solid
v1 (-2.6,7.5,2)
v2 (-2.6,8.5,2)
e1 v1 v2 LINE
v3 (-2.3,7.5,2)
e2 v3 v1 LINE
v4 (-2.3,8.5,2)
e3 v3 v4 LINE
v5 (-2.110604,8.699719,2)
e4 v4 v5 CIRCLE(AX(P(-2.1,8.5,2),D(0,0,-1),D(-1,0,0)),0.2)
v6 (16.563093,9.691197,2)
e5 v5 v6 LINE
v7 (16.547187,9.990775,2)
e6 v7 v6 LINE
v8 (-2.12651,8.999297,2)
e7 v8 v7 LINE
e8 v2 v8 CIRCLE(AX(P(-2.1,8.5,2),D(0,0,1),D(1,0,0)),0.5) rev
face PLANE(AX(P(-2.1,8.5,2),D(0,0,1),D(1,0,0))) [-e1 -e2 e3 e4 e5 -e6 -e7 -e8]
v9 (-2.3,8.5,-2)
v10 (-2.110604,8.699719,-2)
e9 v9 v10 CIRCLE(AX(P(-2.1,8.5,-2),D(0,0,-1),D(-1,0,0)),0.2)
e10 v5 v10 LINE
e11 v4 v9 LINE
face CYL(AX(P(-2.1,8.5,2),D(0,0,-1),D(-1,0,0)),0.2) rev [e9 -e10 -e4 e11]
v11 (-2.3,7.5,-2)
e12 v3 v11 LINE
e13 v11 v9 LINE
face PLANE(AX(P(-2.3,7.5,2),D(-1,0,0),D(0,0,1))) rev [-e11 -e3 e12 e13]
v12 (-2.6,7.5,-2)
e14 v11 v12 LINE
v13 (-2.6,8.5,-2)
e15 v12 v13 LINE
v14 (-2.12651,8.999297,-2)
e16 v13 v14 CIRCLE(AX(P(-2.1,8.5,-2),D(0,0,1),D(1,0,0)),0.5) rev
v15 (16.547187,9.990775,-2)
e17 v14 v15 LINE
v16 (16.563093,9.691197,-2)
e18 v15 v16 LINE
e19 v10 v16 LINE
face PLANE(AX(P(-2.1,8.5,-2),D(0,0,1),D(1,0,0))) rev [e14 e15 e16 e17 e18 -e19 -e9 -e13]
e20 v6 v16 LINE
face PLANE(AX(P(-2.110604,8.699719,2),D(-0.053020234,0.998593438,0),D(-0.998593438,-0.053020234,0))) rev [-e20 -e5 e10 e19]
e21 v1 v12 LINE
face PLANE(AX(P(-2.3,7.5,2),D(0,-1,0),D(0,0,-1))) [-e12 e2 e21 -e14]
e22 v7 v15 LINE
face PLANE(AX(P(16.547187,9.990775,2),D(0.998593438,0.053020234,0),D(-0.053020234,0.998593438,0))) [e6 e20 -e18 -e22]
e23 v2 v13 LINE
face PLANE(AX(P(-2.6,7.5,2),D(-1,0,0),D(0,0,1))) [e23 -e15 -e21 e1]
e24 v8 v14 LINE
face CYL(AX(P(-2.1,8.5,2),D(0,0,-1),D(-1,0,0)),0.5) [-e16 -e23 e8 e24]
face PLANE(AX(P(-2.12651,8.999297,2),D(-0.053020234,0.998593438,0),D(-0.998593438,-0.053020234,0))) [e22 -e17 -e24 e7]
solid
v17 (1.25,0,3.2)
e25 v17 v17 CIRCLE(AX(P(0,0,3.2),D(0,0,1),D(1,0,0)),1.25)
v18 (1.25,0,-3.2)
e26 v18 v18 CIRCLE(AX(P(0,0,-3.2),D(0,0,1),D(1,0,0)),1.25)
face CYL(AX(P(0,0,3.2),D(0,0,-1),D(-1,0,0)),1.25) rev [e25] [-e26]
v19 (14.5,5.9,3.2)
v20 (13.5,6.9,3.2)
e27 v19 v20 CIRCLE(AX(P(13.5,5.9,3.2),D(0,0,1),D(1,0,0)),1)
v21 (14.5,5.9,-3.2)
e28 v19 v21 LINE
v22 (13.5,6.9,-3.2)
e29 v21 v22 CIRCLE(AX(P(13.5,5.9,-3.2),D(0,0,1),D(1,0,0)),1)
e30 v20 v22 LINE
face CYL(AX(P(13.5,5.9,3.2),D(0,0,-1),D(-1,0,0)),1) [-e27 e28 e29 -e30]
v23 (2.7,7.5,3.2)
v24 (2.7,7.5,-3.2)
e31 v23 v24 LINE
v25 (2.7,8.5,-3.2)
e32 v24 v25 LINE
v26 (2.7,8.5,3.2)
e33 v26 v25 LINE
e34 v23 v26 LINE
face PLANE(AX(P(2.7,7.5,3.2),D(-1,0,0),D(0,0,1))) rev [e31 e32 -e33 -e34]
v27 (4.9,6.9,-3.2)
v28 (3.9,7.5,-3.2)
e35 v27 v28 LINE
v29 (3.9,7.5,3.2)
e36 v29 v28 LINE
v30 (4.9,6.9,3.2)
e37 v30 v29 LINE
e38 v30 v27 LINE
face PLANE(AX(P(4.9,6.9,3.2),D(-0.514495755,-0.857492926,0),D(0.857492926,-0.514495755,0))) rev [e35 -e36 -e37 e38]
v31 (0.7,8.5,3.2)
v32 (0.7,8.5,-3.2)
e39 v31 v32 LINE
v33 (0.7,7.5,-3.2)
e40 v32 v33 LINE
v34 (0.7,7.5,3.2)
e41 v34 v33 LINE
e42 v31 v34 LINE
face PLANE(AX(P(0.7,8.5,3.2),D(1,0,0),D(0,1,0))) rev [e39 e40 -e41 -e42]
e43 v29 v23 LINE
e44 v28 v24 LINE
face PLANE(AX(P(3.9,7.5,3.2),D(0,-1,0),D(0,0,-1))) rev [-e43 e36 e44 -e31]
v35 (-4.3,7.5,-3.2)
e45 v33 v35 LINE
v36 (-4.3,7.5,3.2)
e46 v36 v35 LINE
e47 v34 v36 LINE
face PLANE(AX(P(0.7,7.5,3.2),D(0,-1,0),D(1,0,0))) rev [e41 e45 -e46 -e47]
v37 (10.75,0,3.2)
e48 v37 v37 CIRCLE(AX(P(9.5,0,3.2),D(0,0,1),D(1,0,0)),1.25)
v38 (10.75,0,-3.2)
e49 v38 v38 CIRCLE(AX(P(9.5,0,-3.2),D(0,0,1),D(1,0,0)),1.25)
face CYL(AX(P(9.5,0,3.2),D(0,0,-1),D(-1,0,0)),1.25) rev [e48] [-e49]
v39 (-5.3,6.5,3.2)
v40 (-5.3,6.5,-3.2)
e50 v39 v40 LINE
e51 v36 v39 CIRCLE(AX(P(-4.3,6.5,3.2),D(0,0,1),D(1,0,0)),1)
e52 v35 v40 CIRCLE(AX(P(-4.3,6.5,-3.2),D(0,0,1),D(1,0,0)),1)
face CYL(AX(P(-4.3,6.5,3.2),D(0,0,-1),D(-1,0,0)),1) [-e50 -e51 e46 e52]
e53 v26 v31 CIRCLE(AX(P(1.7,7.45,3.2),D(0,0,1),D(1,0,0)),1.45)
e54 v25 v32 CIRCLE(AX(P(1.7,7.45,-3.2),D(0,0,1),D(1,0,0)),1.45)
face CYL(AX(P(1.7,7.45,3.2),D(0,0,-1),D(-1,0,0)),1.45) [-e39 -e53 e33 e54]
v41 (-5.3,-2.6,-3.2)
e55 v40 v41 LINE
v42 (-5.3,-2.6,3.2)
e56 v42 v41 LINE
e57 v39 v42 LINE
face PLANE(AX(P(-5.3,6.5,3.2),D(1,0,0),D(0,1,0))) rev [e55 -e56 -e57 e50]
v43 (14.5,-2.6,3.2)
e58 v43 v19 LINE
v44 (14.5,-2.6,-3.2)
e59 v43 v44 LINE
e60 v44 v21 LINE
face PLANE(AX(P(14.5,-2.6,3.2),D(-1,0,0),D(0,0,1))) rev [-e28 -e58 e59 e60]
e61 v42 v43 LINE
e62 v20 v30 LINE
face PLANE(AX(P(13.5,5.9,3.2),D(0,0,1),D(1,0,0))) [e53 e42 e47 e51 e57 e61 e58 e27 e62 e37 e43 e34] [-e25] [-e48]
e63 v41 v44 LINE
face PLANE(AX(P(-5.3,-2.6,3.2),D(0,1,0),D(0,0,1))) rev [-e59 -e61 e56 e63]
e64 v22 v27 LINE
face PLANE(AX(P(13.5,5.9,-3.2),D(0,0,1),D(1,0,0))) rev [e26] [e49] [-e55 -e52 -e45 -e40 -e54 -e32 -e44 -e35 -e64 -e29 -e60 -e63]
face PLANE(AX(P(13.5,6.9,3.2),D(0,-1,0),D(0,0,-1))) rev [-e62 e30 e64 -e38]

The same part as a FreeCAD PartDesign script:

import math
import FreeCAD as App
import Part
import Sketcher
from FreeCAD import Vector

doc = App.newDocument("Part")
body = doc.addObject("PartDesign::Body", "Body")

sketch1 = body.newObject("Sketcher::SketchObject", "Sketch")
sketch1.AttachmentSupport = (doc.getObject("XY_Plane"), [""])
sketch1.MapMode = "FlatFace"
sketch1.addGeometry([
    Part.LineSegment(Vector(-5.3, -2.6, 0), Vector(14.5, -2.6, 0)),
    Part.LineSegment(Vector(14.5, -2.6, 0), Vector(14.5, 5.9, 0)),
    Part.ArcOfCircle(Part.Circle(Vector(13.5, 5.9, 0), Vector(0, 0, 1), 1), math.radians(0), math.radians(90)),
    Part.LineSegment(Vector(13.5, 6.9, 0), Vector(4.9, 6.9, 0)),
    Part.LineSegment(Vector(4.9, 6.9, 0), Vector(3.9, 7.5, 0)),
    Part.LineSegment(Vector(3.9, 7.5, 0), Vector(2.7, 7.5, 0)),
    Part.LineSegment(Vector(2.7, 7.5, 0), Vector(2.7, 8.5, 0)),
    Part.ArcOfCircle(Part.Circle(Vector(1.7, 7.45, 0), Vector(0, 0, 1), 1.45), math.radians(46.397181), math.radians(133.602819)),
    Part.LineSegment(Vector(0.7, 8.5, 0), Vector(0.7, 7.5, 0)),
    Part.LineSegment(Vector(0.7, 7.5, 0), Vector(-4.3, 7.5, 0)),
    Part.ArcOfCircle(Part.Circle(Vector(-4.3, 6.5, 0), Vector(0, 0, 1), 1), math.radians(90), math.radians(180)),
    Part.LineSegment(Vector(-5.3, 6.5, 0), Vector(-5.3, -2.6, 0)),
    Part.Circle(Vector(0, 0, 0), Vector(0, 0, 1), 1.25),
    Part.Circle(Vector(9.5, 0, 0), Vector(0, 0, 1), 1.25),
], False)
sketch1.addConstraint([
    Sketcher.Constraint("Coincident", 0, 2, 1, 1),
    Sketcher.Constraint("Tangent", 1, 2, 2, 1),
    Sketcher.Constraint("Tangent", 2, 2, 3, 1),
    Sketcher.Constraint("Coincident", 3, 2, 4, 1),
    Sketcher.Constraint("Coincident", 4, 2, 5, 1),
    Sketcher.Constraint("Coincident", 5, 2, 6, 1),
    Sketcher.Constraint("Coincident", 6, 2, 7, 1),
    Sketcher.Constraint("Coincident", 7, 2, 8, 1),
    Sketcher.Constraint("Coincident", 8, 2, 9, 1),
    Sketcher.Constraint("Tangent", 9, 2, 10, 1),
    Sketcher.Constraint("Tangent", 10, 2, 11, 1),
    Sketcher.Constraint("Coincident", 11, 2, 0, 1),
    Sketcher.Constraint("Horizontal", 0),
    Sketcher.Constraint("Vertical", 1),
    Sketcher.Constraint("Horizontal", 3),
    Sketcher.Constraint("Horizontal", 5),
    Sketcher.Constraint("Vertical", 6),
    Sketcher.Constraint("Vertical", 8),
    Sketcher.Constraint("Horizontal", 9),
    Sketcher.Constraint("Vertical", 11),
    Sketcher.Constraint("Coincident", 12, 3, -1, 1),
    Sketcher.Constraint("Equal", 2, 10),
    Sketcher.Constraint("Equal", 12, 13),
    Sketcher.Constraint("PointOnObject", 13, 3, -1),
    Sketcher.Constraint("Horizontal", 6, 2, 7, 2),
    Sketcher.Constraint("Horizontal", 5, 2, 8, 2),
    Sketcher.Constraint("Radius", 2, 1.0),
    Sketcher.Constraint("Diameter", 12, 2.5),
    Sketcher.Constraint("DistanceX", 9, 2, 9, 1, 5.0),
    Sketcher.Constraint("DistanceY", 6, 1, 6, 2, 1.0),
    Sketcher.Constraint("Radius", 7, 1.45),
    Sketcher.Constraint("DistanceX", 0, 1, 0, 2, 19.8),
    Sketcher.Constraint("DistanceX", 3, 2, 3, 1, 8.6),
    Sketcher.Constraint("DistanceX", 5, 2, 5, 1, 1.2),
    Sketcher.Constraint("DistanceY", 1, 1, 1, 2, 8.5),
    Sketcher.Constraint("DistanceY", 11, 2, 11, 1, 9.1),
    Sketcher.Constraint("DistanceX", 10, 3, 7, 3, 6.0),
    Sketcher.Constraint("DistanceX", 13, 3, 2, 3, 4.0),
    Sketcher.Constraint("DistanceX", -1, 1, 2, 3, 13.5),
    Sketcher.Constraint("DistanceY", -1, 1, 2, 3, 5.9),
])
pad1 = body.newObject("PartDesign::Pad", "Pad")
pad1.Profile = sketch1
pad1.Length = 6.4
pad1.Midplane = True
body2 = doc.addObject("PartDesign::Body", "Body001")

sketch2 = body2.newObject("Sketcher::SketchObject", "Sketch001")
sketch2.AttachmentSupport = (doc.getObject("XY_Plane001"), [""])
sketch2.MapMode = "FlatFace"
sketch2.addGeometry([
    Part.LineSegment(Vector(-2.3, 7.5, 0), Vector(-2.3, 8.5, 0)),
    Part.ArcOfCircle(Part.Circle(Vector(-2.1, 8.5, 0), Vector(0, 0, 1), 0.2), math.radians(93.039261), math.radians(180)),
    Part.LineSegment(Vector(-2.110604, 8.699719, 0), Vector(16.563093, 9.691197, 0)),
    Part.LineSegment(Vector(16.563093, 9.691197, 0), Vector(16.547187, 9.990775, 0)),
    Part.LineSegment(Vector(16.547187, 9.990775, 0), Vector(-2.12651, 8.999297, 0)),
    Part.ArcOfCircle(Part.Circle(Vector(-2.1, 8.5, 0), Vector(0, 0, 1), 0.5), math.radians(93.039261), math.radians(180)),
    Part.LineSegment(Vector(-2.6, 8.5, 0), Vector(-2.6, 7.5, 0)),
    Part.LineSegment(Vector(-2.6, 7.5, 0), Vector(-2.3, 7.5, 0)),
], False)
sketch2.addConstraint([
    Sketcher.Constraint("Tangent", 0, 2, 1, 2),
    Sketcher.Constraint("Tangent", 1, 1, 2, 1),
    Sketcher.Constraint("Coincident", 2, 2, 3, 1),
    Sketcher.Constraint("Coincident", 3, 2, 4, 1),
    Sketcher.Constraint("Tangent", 4, 2, 5, 1),
    Sketcher.Constraint("Tangent", 5, 2, 6, 1),
    Sketcher.Constraint("Coincident", 6, 2, 7, 1),
    Sketcher.Constraint("Coincident", 7, 2, 0, 1),
    Sketcher.Constraint("Vertical", 0),
    Sketcher.Constraint("Vertical", 6),
    Sketcher.Constraint("Horizontal", 7),
    Sketcher.Constraint("Coincident", 5, 3, 1, 3),
    Sketcher.Constraint("Perpendicular", 2, 3),
    Sketcher.Constraint("Perpendicular", 3, 4),
    Sketcher.Constraint("Radius", 1, 0.2),
    Sketcher.Constraint("Radius", 5, 0.5),
    Sketcher.Constraint("DistanceY", 0, 1, 0, 2, 1.0),
    Sketcher.Constraint("Distance", 2, 18.7),
    Sketcher.Constraint("DistanceX", 1, 3, -1, 1, 2.1),
    Sketcher.Constraint("DistanceY", -1, 1, 1, 3, 8.5),
    Sketcher.Constraint("DistanceX", 4, 2, -1, 1, 2.12651),
])
pad2 = body2.newObject("PartDesign::Pad", "Pad001")
pad2.Profile = sketch2
pad2.Length = 4
pad2.Midplane = True

doc.recompute()
